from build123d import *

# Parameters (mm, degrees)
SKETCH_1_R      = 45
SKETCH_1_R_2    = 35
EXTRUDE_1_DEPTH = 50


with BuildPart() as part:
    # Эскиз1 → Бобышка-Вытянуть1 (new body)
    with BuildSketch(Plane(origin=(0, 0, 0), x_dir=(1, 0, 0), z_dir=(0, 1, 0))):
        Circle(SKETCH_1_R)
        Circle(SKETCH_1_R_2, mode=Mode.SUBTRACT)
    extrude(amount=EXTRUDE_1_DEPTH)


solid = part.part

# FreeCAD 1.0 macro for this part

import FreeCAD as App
import Part
import Sketcher
from FreeCAD import Vector

doc = App.newDocument("Part")
body = doc.addObject("PartDesign::Body", "Body")

# Sketch on XZ plane
sketch1 = doc.addObject("Sketcher::SketchObject", "Sketch")
body.addObject(sketch1)
sketch1.AttachmentSupport = (doc.XZ_Plane, [""])
sketch1.MapMode = "FlatFace"
sketch1.addGeometry([
    Part.Circle(Vector(0, 0, 0), Vector(0, 0, 1), 45),
    Part.Circle(Vector(0, 0, 0), Vector(0, 0, 1), 35),
], False)
sketch1.addConstraint([
    Sketcher.Constraint("Coincident", 0, 3, -1, 1),
    Sketcher.Constraint("Coincident", 1, 3, -1, 1),
    Sketcher.Constraint("Diameter", 0, 90.0),
    Sketcher.Constraint("Diameter", 1, 70.0),
])
pad1 = doc.addObject("PartDesign::Pad", "Pad")
body.addObject(pad1)
pad1.Profile = sketch1
pad1.Length = 50
pad1.Reversed = True

doc.recompute()
